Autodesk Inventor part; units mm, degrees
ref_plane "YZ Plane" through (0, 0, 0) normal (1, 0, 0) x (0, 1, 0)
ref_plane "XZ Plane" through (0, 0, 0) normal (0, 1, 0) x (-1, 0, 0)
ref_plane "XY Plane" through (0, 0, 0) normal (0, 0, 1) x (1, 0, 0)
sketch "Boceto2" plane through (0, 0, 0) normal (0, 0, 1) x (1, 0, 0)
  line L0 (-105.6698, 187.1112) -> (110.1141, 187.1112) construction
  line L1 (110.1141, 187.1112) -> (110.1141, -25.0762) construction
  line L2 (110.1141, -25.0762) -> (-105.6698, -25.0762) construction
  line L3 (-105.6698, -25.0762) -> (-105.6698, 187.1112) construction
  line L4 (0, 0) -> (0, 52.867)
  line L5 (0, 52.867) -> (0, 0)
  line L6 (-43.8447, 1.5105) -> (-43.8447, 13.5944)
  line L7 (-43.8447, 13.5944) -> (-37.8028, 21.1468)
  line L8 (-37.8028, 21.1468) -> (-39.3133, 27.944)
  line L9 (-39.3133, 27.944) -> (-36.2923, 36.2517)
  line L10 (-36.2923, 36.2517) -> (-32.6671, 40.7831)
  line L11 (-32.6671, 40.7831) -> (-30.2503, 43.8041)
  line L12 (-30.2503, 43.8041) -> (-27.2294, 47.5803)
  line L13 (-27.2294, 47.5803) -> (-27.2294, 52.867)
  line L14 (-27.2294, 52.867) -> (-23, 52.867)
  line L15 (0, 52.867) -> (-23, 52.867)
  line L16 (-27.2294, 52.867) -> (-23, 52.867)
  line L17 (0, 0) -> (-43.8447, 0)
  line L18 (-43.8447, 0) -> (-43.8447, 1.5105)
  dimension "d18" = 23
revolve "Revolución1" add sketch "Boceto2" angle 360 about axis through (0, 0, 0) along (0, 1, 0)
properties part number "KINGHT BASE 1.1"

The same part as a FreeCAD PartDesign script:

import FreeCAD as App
import Part
import Sketcher

V = App.Vector
Q = App.Units.Quantity

doc = App.newDocument("Part")
body = doc.addObject("PartDesign::Body", "Body")

sketch1 = body.newObject("Sketcher::SketchObject", "Sketch")
sketch1.AttachmentSupport = (doc.getObject("XY_Plane"), [""])
sketch1.MapMode = "FlatFace"
sketch1.addGeometry(Part.LineSegment(V(-43.8, 0, 0), V(0, 0, 0)), False)
sketch1.addGeometry(Part.LineSegment(V(0, 0, 0), V(0, 52.9, 0)), False)
sketch1.addGeometry(Part.LineSegment(V(0, 52.9, 0), V(-27.2, 52.9, 0)), False)
sketch1.addGeometry(Part.LineSegment(V(-27.2, 52.9, 0), V(-27.2, 47.6, 0)), False)
sketch1.addGeometry(Part.LineSegment(V(-27.2, 47.6, 0), V(-30.3, 43.8, 0)), False)
sketch1.addGeometry(Part.LineSegment(V(-30.3, 43.8, 0), V(-32.7, 40.8, 0)), False)
sketch1.addGeometry(Part.LineSegment(V(-32.7, 40.8, 0), V(-36.3, 36.3, 0)), False)
sketch1.addGeometry(Part.LineSegment(V(-36.3, 36.3, 0), V(-39.3, 27.9, 0)), False)
sketch1.addGeometry(Part.LineSegment(V(-39.3, 27.9, 0), V(-37.8, 21.1, 0)), False)
sketch1.addGeometry(Part.LineSegment(V(-37.8, 21.1, 0), V(-43.8, 13.6, 0)), False)
sketch1.addGeometry(Part.LineSegment(V(-43.8, 13.6, 0), V(-43.8, 0, 0)), False)
sketch1.addConstraint(Sketcher.Constraint("Coincident", 0, 2, 1, 1))
sketch1.addConstraint(Sketcher.Constraint("Coincident", 1, 2, 2, 1))
sketch1.addConstraint(Sketcher.Constraint("Coincident", 2, 2, 3, 1))
sketch1.addConstraint(Sketcher.Constraint("Coincident", 3, 2, 4, 1))
sketch1.addConstraint(Sketcher.Constraint("Coincident", 4, 2, 5, 1))
sketch1.addConstraint(Sketcher.Constraint("Coincident", 5, 2, 6, 1))
sketch1.addConstraint(Sketcher.Constraint("Coincident", 6, 2, 7, 1))
sketch1.addConstraint(Sketcher.Constraint("Coincident", 7, 2, 8, 1))
sketch1.addConstraint(Sketcher.Constraint("Coincident", 8, 2, 9, 1))
sketch1.addConstraint(Sketcher.Constraint("Coincident", 9, 2, 10, 1))
sketch1.addConstraint(Sketcher.Constraint("Coincident", 10, 2, 0, 1))
sketch1.addConstraint(Sketcher.Constraint("Horizontal", 0))
sketch1.addConstraint(Sketcher.Constraint("Vertical", 1))
sketch1.addConstraint(Sketcher.Constraint("Horizontal", 2))
sketch1.addConstraint(Sketcher.Constraint("Vertical", 3))
sketch1.addConstraint(Sketcher.Constraint("Vertical", 10))
sketch1.addConstraint(Sketcher.Constraint("Coincident", 0, 2, -1, 1))
sketch1.addConstraint(Sketcher.Constraint("Parallel", 4, 5))
sketch1.addConstraint(Sketcher.Constraint("Parallel", 5, 6))
sketch1.addConstraint(Sketcher.Constraint("Parallel", 6, 9))
sketch1.addConstraint(Sketcher.Constraint("Angle", 4, Q("-128.6593 deg")))
sketch1.addConstraint(Sketcher.Constraint("Angle", 8, Q("-77.471 deg")))
sketch1.addConstraint(Sketcher.Constraint("Distance", 7, Q("8.84 mm")))
sketch1.addConstraint(Sketcher.Constraint("DistanceY", 1, 1, 1, 2, Q("52.867 mm")))
sketch1.addConstraint(Sketcher.Constraint("DistanceY", 7, 2, 4, 2, Q("15.86 mm")))
sketch1.addConstraint(Sketcher.Constraint("Distance", 6, Q("5.803 mm")))
sketch1.addConstraint(Sketcher.Constraint("Distance", 8, Q("6.963 mm")))
sketch1.addConstraint(Sketcher.Constraint("DistanceX", 0, 1, 0, 2, Q("43.8447 mm")))
sketch1.addConstraint(Sketcher.Constraint("DistanceX", 2, 2, 2, 1, Q("27.2294 mm")))
sketch1.addConstraint(Sketcher.Constraint("DistanceY", 3, 2, 3, 1, Q("5.2867 mm")))
sketch1.addConstraint(Sketcher.Constraint("DistanceY", 10, 2, 10, 1, Q("13.5944 mm")))
sketch1.addConstraint(Sketcher.Constraint("DistanceY", -1, 1, 4, 2, Q("43.804 mm")))
revolution = body.newObject("PartDesign::Revolution", "Revolution")
revolution.Profile = sketch1
revolution.ReferenceAxis = (sketch1, ["V_Axis"])
revolution.Angle = 360

doc.recompute()
